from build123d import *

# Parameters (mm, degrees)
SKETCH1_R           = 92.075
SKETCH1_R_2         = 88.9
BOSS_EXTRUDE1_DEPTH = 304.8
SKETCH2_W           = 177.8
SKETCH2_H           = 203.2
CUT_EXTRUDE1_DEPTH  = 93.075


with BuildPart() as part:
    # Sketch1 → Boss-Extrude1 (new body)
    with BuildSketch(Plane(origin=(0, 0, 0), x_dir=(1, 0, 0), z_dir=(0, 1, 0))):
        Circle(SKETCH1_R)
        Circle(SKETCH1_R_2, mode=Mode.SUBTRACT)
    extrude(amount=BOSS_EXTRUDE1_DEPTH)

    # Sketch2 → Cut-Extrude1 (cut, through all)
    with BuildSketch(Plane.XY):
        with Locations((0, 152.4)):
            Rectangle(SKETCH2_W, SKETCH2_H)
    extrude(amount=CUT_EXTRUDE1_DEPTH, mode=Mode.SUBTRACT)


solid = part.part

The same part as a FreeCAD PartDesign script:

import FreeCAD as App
import Part
import Sketcher

V = App.Vector
Q = App.Units.Quantity


def add_polygon(sketch, points):
    """Adds a closed chain of lines whose ends are joined by coincident constraints."""
    first, n = sketch.GeometryCount, len(points)
    for a, b in zip(points, points[1:] + points[:1]):
        sketch.addGeometry(Part.LineSegment(App.Vector(*a, 0), App.Vector(*b, 0)), False)
    for i in range(n):
        sketch.addConstraint(Sketcher.Constraint("Coincident", first + i, 2, first + (i + 1) % n, 1))

doc = App.newDocument("Part")
body = doc.addObject("PartDesign::Body", "Body")

sketch1 = doc.addObject("Sketcher::SketchObject", "Sketch")
body.addObject(sketch1)
sketch1.AttachmentSupport = (doc.XZ_Plane, [""])
sketch1.MapMode = "FlatFace"
sketch1.addGeometry([
    Part.Circle(V(0, 0, 0), V(0, 0, 1), 92),
    Part.Circle(V(0, 0, 0), V(0, 0, 1), 89),
], False)
sketch1.addConstraint([
    Sketcher.Constraint("Coincident", 0, 3, -1, 1),
    Sketcher.Constraint("Coincident", 1, 3, -1, 1),
    Sketcher.Constraint("Diameter", 1, Q("7 in")),
    Sketcher.Constraint("Diameter", 0, Q("7.25 in")),
])
pad1 = doc.addObject("PartDesign::Pad", "Pad")
body.addObject(pad1)
pad1.Profile = sketch1
pad1.Length = Q("12 in")
pad1.Reversed = True

sketch2 = doc.addObject("Sketcher::SketchObject", "Sketch001")
body.addObject(sketch2)
sketch2.AttachmentSupport = (doc.XY_Plane, [""])
sketch2.MapMode = "FlatFace"
add_polygon(sketch2, [(-89, 254), (-89, 51), (89, 51), (89, 254)])
sketch2.addConstraint([
    Sketcher.Constraint("Vertical", 0),
    Sketcher.Constraint("Horizontal", 1),
    Sketcher.Constraint("Vertical", 2),
    Sketcher.Constraint("Horizontal", 3),
    Sketcher.Constraint("DistanceX", 1, 1, 1, 2, Q("7 in")),
    Sketcher.Constraint("DistanceY", 0, 2, 0, 1, Q("8 in")),
    Sketcher.Constraint("DistanceY", -1, 1, 0, 2, Q("2 in")),
    Sketcher.Constraint("DistanceX", 0, 2, -1, 1, Q("3.5 in")),
])
pocket1 = doc.addObject("PartDesign::Pocket", "Pocket")
body.addObject(pocket1)
pocket1.Profile = sketch2
pocket1.Type = "ThroughAll"
pocket1.Reversed = True

doc.recompute()
